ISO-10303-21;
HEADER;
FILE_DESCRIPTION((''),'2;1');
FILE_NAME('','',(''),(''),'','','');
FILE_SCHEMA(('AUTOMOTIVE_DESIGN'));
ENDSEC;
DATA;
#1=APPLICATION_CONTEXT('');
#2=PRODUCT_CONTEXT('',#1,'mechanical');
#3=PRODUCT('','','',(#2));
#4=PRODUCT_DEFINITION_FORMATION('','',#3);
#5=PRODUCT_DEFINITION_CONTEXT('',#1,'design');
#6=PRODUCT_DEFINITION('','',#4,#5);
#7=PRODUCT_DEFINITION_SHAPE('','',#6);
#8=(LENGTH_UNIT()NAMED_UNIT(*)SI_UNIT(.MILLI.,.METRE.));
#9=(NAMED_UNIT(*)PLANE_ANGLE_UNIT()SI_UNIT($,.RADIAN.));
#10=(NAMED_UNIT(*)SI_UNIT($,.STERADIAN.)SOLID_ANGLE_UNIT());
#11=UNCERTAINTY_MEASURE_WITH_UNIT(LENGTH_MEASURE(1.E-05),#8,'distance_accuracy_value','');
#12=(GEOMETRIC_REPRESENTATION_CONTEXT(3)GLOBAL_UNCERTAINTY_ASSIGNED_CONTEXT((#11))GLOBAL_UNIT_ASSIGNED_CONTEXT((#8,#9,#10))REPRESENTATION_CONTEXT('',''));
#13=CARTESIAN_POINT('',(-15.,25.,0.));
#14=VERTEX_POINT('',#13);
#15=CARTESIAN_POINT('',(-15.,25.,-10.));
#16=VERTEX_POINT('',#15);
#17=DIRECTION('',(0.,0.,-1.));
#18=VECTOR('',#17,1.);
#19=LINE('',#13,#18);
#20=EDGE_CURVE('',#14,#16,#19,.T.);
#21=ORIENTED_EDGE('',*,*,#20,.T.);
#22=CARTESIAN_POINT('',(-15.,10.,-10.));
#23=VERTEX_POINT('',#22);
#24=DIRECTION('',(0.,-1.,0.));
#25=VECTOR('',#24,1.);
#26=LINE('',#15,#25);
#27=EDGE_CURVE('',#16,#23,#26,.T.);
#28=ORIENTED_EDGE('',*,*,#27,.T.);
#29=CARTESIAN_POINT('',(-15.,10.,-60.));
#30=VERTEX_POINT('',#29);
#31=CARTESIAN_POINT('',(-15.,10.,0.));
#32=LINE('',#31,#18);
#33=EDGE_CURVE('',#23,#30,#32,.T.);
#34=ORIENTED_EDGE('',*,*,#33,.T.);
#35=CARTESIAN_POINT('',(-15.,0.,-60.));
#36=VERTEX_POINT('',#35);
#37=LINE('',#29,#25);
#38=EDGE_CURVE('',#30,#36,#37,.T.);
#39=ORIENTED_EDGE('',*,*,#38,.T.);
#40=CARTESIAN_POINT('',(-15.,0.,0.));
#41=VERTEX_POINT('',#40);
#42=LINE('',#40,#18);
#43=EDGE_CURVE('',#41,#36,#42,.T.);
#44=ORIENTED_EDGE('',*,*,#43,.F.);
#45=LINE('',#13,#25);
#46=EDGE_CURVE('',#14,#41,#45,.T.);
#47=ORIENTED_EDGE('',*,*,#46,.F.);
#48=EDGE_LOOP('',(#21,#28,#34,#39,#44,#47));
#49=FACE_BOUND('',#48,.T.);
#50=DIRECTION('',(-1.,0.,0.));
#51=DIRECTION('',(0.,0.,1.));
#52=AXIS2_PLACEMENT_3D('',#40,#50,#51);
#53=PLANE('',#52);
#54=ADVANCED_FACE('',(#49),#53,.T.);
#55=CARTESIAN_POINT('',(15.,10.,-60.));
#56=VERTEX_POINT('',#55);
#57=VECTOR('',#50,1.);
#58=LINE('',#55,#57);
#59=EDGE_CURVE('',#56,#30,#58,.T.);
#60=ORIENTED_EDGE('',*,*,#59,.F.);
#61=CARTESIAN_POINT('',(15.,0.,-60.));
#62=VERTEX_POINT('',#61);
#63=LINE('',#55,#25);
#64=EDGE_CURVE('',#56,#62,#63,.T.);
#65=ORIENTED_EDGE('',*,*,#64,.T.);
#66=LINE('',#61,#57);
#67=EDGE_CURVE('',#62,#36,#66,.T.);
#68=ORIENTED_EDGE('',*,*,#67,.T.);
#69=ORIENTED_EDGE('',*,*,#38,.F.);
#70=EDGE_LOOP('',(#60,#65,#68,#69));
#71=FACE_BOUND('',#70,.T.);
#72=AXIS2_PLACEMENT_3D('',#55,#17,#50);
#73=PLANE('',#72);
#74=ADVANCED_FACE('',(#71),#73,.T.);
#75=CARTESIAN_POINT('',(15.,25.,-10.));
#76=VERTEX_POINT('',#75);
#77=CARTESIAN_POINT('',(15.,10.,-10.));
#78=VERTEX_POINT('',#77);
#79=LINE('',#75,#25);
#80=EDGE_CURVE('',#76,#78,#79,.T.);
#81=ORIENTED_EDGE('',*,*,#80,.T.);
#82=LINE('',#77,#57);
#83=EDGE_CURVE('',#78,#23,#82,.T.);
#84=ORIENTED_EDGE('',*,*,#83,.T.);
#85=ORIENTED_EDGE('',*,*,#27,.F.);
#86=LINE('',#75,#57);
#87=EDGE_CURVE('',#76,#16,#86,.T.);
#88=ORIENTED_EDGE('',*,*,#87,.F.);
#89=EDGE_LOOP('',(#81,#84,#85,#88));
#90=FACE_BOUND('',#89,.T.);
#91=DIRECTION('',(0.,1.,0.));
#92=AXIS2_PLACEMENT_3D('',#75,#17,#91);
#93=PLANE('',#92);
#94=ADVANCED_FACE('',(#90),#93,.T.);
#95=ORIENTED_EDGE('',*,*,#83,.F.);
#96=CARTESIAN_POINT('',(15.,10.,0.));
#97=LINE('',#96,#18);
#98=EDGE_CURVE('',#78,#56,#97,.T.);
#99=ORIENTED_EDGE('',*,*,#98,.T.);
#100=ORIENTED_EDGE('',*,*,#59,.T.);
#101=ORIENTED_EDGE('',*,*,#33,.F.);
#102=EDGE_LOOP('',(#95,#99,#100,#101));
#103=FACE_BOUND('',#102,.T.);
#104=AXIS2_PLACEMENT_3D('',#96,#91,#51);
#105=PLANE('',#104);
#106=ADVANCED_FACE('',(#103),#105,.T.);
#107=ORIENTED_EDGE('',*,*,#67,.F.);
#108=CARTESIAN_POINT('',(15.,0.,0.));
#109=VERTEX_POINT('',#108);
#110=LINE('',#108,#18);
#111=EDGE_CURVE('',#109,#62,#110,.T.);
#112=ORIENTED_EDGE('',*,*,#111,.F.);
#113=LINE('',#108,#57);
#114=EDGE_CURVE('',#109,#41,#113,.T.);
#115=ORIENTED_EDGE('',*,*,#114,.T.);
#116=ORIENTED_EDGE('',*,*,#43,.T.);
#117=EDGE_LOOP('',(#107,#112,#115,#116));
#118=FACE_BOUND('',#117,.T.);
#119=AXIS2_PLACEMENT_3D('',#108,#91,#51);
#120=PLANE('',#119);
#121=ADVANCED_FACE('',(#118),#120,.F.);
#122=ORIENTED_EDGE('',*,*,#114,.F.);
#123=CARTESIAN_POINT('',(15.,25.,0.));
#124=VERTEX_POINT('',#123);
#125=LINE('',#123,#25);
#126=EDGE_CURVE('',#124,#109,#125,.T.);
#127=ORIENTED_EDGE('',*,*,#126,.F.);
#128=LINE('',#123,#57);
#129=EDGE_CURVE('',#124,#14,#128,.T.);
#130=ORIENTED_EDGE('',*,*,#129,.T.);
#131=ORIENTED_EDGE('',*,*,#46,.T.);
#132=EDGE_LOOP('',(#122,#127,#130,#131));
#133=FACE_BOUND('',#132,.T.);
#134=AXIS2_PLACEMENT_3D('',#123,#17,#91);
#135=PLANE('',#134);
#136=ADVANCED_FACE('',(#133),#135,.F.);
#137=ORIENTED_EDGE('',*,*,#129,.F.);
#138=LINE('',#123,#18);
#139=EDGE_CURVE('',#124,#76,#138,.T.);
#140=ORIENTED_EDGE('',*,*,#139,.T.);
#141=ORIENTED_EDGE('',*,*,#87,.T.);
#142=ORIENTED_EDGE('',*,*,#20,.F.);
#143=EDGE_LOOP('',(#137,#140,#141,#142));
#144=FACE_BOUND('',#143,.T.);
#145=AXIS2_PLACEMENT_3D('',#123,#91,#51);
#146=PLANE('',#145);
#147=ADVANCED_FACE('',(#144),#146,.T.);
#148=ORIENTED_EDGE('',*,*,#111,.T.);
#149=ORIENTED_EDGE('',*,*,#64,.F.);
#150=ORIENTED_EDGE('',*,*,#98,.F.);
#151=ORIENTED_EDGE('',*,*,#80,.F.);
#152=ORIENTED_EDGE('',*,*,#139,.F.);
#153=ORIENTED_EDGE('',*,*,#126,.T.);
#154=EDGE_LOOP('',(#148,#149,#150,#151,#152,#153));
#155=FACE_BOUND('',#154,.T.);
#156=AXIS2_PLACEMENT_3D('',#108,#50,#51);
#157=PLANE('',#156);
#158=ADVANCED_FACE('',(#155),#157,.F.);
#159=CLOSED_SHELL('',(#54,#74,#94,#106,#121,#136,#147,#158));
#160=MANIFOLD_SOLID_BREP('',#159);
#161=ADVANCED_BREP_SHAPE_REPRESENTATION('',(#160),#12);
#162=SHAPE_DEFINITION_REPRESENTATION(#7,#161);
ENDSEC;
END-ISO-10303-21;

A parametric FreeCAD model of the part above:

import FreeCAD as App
import Part
import Sketcher

V = App.Vector

doc = App.newDocument("Part")
params = doc.addObject("Spreadsheet::Sheet", "Params")
for row, (alias, value) in enumerate([
    ("sketch1_width", "25 mm"),
    ("sketch1_width2", "10 mm"),
    ("sketch1_height", "60 mm"),
    ("pad1_length", "30 mm"),
], start=1):
    params.set(f"A{row}", alias)
    params.set(f"B{row}", "=" + value)
    params.setAlias(f"B{row}", alias)

body = doc.addObject("PartDesign::Body", "Body")

sketch1 = body.newObject("Sketcher::SketchObject", "Sketch")
sketch1.AttachmentSupport = (doc.getObject("YZ_Plane"), [""])
sketch1.MapMode = "FlatFace"
sketch1.addGeometry(Part.LineSegment(V(25, 0, 0), V(0, 0, 0)), False)
sketch1.addGeometry(Part.LineSegment(V(0, 0, 0), V(0, -60, 0)), False)
sketch1.addGeometry(Part.LineSegment(V(0, -60, 0), V(10, -60, 0)), False)
sketch1.addGeometry(Part.LineSegment(V(10, -60, 0), V(10, -10, 0)), False)
sketch1.addGeometry(Part.LineSegment(V(10, -10, 0), V(25, -10, 0)), False)
sketch1.addGeometry(Part.LineSegment(V(25, -10, 0), V(25, 0, 0)), False)
sketch1.addConstraint(Sketcher.Constraint("Coincident", 0, 2, 1, 1))
sketch1.addConstraint(Sketcher.Constraint("Coincident", 1, 2, 2, 1))
sketch1.addConstraint(Sketcher.Constraint("Coincident", 2, 2, 3, 1))
sketch1.addConstraint(Sketcher.Constraint("Coincident", 3, 2, 4, 1))
sketch1.addConstraint(Sketcher.Constraint("Coincident", 4, 2, 5, 1))
sketch1.addConstraint(Sketcher.Constraint("Coincident", 5, 2, 0, 1))
sketch1.addConstraint(Sketcher.Constraint("Horizontal", 0))
sketch1.addConstraint(Sketcher.Constraint("Vertical", 1))
sketch1.addConstraint(Sketcher.Constraint("Horizontal", 2))
sketch1.addConstraint(Sketcher.Constraint("Vertical", 3))
sketch1.addConstraint(Sketcher.Constraint("Horizontal", 4))
sketch1.addConstraint(Sketcher.Constraint("Vertical", 5))
sketch1.addConstraint(Sketcher.Constraint("Coincident", 0, 2, -1, 1))
sketch1.addConstraint(Sketcher.Constraint("Equal", 2, 5))
sketch1.addConstraint(Sketcher.Constraint("DistanceX", 0, 2, 0, 1, 25.0))
sketch1.addConstraint(Sketcher.Constraint("DistanceX", 2, 1, 2, 2, 10.0))
sketch1.addConstraint(Sketcher.Constraint("DistanceY", 1, 2, 1, 1, 60.0))
sketch1.setExpression("Constraints[14]", "Params.sketch1_width")
sketch1.setExpression("Constraints[15]", "Params.sketch1_width2")
sketch1.setExpression("Constraints[16]", "Params.sketch1_height")
pad1 = body.newObject("PartDesign::Pad", "Pad")
pad1.Profile = sketch1
pad1.setExpression("Length", "Params.pad1_length")
pad1.Midplane = True

doc.recompute()
